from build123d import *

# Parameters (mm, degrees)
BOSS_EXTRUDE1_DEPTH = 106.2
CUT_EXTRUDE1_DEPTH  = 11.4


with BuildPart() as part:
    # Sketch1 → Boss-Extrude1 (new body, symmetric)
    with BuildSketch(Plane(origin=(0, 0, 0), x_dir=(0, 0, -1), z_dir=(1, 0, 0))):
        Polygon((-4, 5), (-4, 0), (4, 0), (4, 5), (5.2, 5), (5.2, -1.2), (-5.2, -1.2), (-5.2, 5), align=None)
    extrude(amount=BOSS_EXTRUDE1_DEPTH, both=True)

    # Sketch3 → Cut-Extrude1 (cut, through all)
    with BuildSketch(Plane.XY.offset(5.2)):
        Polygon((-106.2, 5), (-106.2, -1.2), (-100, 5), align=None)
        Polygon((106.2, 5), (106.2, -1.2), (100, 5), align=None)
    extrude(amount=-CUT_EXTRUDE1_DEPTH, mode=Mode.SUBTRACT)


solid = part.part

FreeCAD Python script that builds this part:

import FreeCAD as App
import Part
import Sketcher
from FreeCAD import Vector

doc = App.newDocument("Part")
body = doc.addObject("PartDesign::Body", "Body")

# Sketch on YZ plane
sketch1 = doc.addObject("Sketcher::SketchObject", "Sketch")
body.addObject(sketch1)
sketch1.AttachmentSupport = (doc.YZ_Plane, [""])
sketch1.MapMode = "FlatFace"
sketch1.addGeometry([
    Part.LineSegment(Vector(0, 4, 0), Vector(5, 4, 0)),  # 0
    Part.LineSegment(Vector(5, 4, 0), Vector(5, 5.2, 0)),  # 1
    Part.LineSegment(Vector(5, 5.2, 0), Vector(-1.2, 5.2, 0)),  # 2
    Part.LineSegment(Vector(-1.2, 5.2, 0), Vector(-1.2, -5.2, 0)),  # 3
    Part.LineSegment(Vector(-1.2, -5.2, 0), Vector(5, -5.2, 0)),  # 4
    Part.LineSegment(Vector(5, -5.2, 0), Vector(5, -4, 0)),  # 5
    Part.LineSegment(Vector(5, -4, 0), Vector(0, -4, 0)),  # 6
    Part.LineSegment(Vector(0, -4, 0), Vector(0, 4, 0)),  # 7
], False)
sketch1.addConstraint([
    Sketcher.Constraint("Coincident", 0, 2, 1, 1),
    Sketcher.Constraint("Coincident", 1, 2, 2, 1),
    Sketcher.Constraint("Coincident", 2, 2, 3, 1),
    Sketcher.Constraint("Coincident", 3, 2, 4, 1),
    Sketcher.Constraint("Coincident", 4, 2, 5, 1),
    Sketcher.Constraint("Coincident", 5, 2, 6, 1),
    Sketcher.Constraint("Coincident", 6, 2, 7, 1),
    Sketcher.Constraint("Coincident", 7, 2, 0, 1),
    Sketcher.Constraint("Horizontal", 0),
    Sketcher.Constraint("Vertical", 1),
    Sketcher.Constraint("Horizontal", 2),
    Sketcher.Constraint("Vertical", 3),
    Sketcher.Constraint("Horizontal", 4),
    Sketcher.Constraint("Vertical", 5),
    Sketcher.Constraint("Horizontal", 6),
    Sketcher.Constraint("Vertical", 7),
    Sketcher.Constraint("Symmetric", 6, 2, 7, 2, -1, 1),
    Sketcher.Constraint("Symmetric", 1, 2, 4, 2, -1),
    Sketcher.Constraint("DistanceX", 0, 1, 0, 2, 5.0),
    Sketcher.Constraint("DistanceY", 7, 1, 7, 2, 8.0),
    Sketcher.Constraint("DistanceX", 2, 2, 2, 1, 6.2),
    Sketcher.Constraint("DistanceY", 1, 1, 1, 2, 1.2),
])
pad1 = doc.addObject("PartDesign::Pad", "Pad")
body.addObject(pad1)
pad1.Profile = sketch1
pad1.Length = 212.4
pad1.Midplane = True

# Sketch on XY plane
sketch2 = doc.addObject("Sketcher::SketchObject", "Sketch001")
body.addObject(sketch2)
sketch2.AttachmentSupport = (doc.XY_Plane, [""])
sketch2.MapMode = "FlatFace"
sketch2.AttachmentOffset = App.Placement(Vector(0, 0, 5.2), App.Rotation())
sketch2.addGeometry([
    Part.LineSegment(Vector(-106, 5, 0), Vector(-106, -1, 0)),  # 0
    Part.LineSegment(Vector(-106, -1, 0), Vector(-100, 5, 0)),  # 1
    Part.LineSegment(Vector(-100, 5, 0), Vector(-106, 5, 0)),  # 2
    Part.LineSegment(Vector(106, -1, 0), Vector(106, 5, 0)),  # 3
    Part.LineSegment(Vector(106, 5, 0), Vector(100, 5, 0)),  # 4
    Part.LineSegment(Vector(100, 5, 0), Vector(106, -1, 0)),  # 5
], False)
sketch2.addConstraint([
    Sketcher.Constraint("Coincident", 0, 2, 1, 1),
    Sketcher.Constraint("Coincident", 1, 2, 2, 1),
    Sketcher.Constraint("Coincident", 2, 2, 0, 1),
    Sketcher.Constraint("Coincident", 3, 2, 4, 1),
    Sketcher.Constraint("Coincident", 4, 2, 5, 1),
    Sketcher.Constraint("Coincident", 5, 2, 3, 1),
    Sketcher.Constraint("Vertical", 0),
    Sketcher.Constraint("Horizontal", 2),
    Sketcher.Constraint("Vertical", 3),
    Sketcher.Constraint("Horizontal", 4),
    Sketcher.Constraint("Symmetric", 2, 2, 3, 2, -2),
    Sketcher.Constraint("Perpendicular", 1, 5),
    Sketcher.Constraint("Horizontal", 0, 2, 5, 2),
    Sketcher.Constraint("Equal", 2, 4),
    Sketcher.Constraint("DistanceX", 2, 2, 2, 1, 6.2),
    Sketcher.Constraint("DistanceX", 1, 2, -1, 1, 100.0),
    Sketcher.Constraint("DistanceY", -1, 1, 1, 2, 5.0),
])
pocket1 = doc.addObject("PartDesign::Pocket", "Pocket")
body.addObject(pocket1)
pocket1.Profile = sketch2
pocket1.Type = "ThroughAll"

doc.recompute()
